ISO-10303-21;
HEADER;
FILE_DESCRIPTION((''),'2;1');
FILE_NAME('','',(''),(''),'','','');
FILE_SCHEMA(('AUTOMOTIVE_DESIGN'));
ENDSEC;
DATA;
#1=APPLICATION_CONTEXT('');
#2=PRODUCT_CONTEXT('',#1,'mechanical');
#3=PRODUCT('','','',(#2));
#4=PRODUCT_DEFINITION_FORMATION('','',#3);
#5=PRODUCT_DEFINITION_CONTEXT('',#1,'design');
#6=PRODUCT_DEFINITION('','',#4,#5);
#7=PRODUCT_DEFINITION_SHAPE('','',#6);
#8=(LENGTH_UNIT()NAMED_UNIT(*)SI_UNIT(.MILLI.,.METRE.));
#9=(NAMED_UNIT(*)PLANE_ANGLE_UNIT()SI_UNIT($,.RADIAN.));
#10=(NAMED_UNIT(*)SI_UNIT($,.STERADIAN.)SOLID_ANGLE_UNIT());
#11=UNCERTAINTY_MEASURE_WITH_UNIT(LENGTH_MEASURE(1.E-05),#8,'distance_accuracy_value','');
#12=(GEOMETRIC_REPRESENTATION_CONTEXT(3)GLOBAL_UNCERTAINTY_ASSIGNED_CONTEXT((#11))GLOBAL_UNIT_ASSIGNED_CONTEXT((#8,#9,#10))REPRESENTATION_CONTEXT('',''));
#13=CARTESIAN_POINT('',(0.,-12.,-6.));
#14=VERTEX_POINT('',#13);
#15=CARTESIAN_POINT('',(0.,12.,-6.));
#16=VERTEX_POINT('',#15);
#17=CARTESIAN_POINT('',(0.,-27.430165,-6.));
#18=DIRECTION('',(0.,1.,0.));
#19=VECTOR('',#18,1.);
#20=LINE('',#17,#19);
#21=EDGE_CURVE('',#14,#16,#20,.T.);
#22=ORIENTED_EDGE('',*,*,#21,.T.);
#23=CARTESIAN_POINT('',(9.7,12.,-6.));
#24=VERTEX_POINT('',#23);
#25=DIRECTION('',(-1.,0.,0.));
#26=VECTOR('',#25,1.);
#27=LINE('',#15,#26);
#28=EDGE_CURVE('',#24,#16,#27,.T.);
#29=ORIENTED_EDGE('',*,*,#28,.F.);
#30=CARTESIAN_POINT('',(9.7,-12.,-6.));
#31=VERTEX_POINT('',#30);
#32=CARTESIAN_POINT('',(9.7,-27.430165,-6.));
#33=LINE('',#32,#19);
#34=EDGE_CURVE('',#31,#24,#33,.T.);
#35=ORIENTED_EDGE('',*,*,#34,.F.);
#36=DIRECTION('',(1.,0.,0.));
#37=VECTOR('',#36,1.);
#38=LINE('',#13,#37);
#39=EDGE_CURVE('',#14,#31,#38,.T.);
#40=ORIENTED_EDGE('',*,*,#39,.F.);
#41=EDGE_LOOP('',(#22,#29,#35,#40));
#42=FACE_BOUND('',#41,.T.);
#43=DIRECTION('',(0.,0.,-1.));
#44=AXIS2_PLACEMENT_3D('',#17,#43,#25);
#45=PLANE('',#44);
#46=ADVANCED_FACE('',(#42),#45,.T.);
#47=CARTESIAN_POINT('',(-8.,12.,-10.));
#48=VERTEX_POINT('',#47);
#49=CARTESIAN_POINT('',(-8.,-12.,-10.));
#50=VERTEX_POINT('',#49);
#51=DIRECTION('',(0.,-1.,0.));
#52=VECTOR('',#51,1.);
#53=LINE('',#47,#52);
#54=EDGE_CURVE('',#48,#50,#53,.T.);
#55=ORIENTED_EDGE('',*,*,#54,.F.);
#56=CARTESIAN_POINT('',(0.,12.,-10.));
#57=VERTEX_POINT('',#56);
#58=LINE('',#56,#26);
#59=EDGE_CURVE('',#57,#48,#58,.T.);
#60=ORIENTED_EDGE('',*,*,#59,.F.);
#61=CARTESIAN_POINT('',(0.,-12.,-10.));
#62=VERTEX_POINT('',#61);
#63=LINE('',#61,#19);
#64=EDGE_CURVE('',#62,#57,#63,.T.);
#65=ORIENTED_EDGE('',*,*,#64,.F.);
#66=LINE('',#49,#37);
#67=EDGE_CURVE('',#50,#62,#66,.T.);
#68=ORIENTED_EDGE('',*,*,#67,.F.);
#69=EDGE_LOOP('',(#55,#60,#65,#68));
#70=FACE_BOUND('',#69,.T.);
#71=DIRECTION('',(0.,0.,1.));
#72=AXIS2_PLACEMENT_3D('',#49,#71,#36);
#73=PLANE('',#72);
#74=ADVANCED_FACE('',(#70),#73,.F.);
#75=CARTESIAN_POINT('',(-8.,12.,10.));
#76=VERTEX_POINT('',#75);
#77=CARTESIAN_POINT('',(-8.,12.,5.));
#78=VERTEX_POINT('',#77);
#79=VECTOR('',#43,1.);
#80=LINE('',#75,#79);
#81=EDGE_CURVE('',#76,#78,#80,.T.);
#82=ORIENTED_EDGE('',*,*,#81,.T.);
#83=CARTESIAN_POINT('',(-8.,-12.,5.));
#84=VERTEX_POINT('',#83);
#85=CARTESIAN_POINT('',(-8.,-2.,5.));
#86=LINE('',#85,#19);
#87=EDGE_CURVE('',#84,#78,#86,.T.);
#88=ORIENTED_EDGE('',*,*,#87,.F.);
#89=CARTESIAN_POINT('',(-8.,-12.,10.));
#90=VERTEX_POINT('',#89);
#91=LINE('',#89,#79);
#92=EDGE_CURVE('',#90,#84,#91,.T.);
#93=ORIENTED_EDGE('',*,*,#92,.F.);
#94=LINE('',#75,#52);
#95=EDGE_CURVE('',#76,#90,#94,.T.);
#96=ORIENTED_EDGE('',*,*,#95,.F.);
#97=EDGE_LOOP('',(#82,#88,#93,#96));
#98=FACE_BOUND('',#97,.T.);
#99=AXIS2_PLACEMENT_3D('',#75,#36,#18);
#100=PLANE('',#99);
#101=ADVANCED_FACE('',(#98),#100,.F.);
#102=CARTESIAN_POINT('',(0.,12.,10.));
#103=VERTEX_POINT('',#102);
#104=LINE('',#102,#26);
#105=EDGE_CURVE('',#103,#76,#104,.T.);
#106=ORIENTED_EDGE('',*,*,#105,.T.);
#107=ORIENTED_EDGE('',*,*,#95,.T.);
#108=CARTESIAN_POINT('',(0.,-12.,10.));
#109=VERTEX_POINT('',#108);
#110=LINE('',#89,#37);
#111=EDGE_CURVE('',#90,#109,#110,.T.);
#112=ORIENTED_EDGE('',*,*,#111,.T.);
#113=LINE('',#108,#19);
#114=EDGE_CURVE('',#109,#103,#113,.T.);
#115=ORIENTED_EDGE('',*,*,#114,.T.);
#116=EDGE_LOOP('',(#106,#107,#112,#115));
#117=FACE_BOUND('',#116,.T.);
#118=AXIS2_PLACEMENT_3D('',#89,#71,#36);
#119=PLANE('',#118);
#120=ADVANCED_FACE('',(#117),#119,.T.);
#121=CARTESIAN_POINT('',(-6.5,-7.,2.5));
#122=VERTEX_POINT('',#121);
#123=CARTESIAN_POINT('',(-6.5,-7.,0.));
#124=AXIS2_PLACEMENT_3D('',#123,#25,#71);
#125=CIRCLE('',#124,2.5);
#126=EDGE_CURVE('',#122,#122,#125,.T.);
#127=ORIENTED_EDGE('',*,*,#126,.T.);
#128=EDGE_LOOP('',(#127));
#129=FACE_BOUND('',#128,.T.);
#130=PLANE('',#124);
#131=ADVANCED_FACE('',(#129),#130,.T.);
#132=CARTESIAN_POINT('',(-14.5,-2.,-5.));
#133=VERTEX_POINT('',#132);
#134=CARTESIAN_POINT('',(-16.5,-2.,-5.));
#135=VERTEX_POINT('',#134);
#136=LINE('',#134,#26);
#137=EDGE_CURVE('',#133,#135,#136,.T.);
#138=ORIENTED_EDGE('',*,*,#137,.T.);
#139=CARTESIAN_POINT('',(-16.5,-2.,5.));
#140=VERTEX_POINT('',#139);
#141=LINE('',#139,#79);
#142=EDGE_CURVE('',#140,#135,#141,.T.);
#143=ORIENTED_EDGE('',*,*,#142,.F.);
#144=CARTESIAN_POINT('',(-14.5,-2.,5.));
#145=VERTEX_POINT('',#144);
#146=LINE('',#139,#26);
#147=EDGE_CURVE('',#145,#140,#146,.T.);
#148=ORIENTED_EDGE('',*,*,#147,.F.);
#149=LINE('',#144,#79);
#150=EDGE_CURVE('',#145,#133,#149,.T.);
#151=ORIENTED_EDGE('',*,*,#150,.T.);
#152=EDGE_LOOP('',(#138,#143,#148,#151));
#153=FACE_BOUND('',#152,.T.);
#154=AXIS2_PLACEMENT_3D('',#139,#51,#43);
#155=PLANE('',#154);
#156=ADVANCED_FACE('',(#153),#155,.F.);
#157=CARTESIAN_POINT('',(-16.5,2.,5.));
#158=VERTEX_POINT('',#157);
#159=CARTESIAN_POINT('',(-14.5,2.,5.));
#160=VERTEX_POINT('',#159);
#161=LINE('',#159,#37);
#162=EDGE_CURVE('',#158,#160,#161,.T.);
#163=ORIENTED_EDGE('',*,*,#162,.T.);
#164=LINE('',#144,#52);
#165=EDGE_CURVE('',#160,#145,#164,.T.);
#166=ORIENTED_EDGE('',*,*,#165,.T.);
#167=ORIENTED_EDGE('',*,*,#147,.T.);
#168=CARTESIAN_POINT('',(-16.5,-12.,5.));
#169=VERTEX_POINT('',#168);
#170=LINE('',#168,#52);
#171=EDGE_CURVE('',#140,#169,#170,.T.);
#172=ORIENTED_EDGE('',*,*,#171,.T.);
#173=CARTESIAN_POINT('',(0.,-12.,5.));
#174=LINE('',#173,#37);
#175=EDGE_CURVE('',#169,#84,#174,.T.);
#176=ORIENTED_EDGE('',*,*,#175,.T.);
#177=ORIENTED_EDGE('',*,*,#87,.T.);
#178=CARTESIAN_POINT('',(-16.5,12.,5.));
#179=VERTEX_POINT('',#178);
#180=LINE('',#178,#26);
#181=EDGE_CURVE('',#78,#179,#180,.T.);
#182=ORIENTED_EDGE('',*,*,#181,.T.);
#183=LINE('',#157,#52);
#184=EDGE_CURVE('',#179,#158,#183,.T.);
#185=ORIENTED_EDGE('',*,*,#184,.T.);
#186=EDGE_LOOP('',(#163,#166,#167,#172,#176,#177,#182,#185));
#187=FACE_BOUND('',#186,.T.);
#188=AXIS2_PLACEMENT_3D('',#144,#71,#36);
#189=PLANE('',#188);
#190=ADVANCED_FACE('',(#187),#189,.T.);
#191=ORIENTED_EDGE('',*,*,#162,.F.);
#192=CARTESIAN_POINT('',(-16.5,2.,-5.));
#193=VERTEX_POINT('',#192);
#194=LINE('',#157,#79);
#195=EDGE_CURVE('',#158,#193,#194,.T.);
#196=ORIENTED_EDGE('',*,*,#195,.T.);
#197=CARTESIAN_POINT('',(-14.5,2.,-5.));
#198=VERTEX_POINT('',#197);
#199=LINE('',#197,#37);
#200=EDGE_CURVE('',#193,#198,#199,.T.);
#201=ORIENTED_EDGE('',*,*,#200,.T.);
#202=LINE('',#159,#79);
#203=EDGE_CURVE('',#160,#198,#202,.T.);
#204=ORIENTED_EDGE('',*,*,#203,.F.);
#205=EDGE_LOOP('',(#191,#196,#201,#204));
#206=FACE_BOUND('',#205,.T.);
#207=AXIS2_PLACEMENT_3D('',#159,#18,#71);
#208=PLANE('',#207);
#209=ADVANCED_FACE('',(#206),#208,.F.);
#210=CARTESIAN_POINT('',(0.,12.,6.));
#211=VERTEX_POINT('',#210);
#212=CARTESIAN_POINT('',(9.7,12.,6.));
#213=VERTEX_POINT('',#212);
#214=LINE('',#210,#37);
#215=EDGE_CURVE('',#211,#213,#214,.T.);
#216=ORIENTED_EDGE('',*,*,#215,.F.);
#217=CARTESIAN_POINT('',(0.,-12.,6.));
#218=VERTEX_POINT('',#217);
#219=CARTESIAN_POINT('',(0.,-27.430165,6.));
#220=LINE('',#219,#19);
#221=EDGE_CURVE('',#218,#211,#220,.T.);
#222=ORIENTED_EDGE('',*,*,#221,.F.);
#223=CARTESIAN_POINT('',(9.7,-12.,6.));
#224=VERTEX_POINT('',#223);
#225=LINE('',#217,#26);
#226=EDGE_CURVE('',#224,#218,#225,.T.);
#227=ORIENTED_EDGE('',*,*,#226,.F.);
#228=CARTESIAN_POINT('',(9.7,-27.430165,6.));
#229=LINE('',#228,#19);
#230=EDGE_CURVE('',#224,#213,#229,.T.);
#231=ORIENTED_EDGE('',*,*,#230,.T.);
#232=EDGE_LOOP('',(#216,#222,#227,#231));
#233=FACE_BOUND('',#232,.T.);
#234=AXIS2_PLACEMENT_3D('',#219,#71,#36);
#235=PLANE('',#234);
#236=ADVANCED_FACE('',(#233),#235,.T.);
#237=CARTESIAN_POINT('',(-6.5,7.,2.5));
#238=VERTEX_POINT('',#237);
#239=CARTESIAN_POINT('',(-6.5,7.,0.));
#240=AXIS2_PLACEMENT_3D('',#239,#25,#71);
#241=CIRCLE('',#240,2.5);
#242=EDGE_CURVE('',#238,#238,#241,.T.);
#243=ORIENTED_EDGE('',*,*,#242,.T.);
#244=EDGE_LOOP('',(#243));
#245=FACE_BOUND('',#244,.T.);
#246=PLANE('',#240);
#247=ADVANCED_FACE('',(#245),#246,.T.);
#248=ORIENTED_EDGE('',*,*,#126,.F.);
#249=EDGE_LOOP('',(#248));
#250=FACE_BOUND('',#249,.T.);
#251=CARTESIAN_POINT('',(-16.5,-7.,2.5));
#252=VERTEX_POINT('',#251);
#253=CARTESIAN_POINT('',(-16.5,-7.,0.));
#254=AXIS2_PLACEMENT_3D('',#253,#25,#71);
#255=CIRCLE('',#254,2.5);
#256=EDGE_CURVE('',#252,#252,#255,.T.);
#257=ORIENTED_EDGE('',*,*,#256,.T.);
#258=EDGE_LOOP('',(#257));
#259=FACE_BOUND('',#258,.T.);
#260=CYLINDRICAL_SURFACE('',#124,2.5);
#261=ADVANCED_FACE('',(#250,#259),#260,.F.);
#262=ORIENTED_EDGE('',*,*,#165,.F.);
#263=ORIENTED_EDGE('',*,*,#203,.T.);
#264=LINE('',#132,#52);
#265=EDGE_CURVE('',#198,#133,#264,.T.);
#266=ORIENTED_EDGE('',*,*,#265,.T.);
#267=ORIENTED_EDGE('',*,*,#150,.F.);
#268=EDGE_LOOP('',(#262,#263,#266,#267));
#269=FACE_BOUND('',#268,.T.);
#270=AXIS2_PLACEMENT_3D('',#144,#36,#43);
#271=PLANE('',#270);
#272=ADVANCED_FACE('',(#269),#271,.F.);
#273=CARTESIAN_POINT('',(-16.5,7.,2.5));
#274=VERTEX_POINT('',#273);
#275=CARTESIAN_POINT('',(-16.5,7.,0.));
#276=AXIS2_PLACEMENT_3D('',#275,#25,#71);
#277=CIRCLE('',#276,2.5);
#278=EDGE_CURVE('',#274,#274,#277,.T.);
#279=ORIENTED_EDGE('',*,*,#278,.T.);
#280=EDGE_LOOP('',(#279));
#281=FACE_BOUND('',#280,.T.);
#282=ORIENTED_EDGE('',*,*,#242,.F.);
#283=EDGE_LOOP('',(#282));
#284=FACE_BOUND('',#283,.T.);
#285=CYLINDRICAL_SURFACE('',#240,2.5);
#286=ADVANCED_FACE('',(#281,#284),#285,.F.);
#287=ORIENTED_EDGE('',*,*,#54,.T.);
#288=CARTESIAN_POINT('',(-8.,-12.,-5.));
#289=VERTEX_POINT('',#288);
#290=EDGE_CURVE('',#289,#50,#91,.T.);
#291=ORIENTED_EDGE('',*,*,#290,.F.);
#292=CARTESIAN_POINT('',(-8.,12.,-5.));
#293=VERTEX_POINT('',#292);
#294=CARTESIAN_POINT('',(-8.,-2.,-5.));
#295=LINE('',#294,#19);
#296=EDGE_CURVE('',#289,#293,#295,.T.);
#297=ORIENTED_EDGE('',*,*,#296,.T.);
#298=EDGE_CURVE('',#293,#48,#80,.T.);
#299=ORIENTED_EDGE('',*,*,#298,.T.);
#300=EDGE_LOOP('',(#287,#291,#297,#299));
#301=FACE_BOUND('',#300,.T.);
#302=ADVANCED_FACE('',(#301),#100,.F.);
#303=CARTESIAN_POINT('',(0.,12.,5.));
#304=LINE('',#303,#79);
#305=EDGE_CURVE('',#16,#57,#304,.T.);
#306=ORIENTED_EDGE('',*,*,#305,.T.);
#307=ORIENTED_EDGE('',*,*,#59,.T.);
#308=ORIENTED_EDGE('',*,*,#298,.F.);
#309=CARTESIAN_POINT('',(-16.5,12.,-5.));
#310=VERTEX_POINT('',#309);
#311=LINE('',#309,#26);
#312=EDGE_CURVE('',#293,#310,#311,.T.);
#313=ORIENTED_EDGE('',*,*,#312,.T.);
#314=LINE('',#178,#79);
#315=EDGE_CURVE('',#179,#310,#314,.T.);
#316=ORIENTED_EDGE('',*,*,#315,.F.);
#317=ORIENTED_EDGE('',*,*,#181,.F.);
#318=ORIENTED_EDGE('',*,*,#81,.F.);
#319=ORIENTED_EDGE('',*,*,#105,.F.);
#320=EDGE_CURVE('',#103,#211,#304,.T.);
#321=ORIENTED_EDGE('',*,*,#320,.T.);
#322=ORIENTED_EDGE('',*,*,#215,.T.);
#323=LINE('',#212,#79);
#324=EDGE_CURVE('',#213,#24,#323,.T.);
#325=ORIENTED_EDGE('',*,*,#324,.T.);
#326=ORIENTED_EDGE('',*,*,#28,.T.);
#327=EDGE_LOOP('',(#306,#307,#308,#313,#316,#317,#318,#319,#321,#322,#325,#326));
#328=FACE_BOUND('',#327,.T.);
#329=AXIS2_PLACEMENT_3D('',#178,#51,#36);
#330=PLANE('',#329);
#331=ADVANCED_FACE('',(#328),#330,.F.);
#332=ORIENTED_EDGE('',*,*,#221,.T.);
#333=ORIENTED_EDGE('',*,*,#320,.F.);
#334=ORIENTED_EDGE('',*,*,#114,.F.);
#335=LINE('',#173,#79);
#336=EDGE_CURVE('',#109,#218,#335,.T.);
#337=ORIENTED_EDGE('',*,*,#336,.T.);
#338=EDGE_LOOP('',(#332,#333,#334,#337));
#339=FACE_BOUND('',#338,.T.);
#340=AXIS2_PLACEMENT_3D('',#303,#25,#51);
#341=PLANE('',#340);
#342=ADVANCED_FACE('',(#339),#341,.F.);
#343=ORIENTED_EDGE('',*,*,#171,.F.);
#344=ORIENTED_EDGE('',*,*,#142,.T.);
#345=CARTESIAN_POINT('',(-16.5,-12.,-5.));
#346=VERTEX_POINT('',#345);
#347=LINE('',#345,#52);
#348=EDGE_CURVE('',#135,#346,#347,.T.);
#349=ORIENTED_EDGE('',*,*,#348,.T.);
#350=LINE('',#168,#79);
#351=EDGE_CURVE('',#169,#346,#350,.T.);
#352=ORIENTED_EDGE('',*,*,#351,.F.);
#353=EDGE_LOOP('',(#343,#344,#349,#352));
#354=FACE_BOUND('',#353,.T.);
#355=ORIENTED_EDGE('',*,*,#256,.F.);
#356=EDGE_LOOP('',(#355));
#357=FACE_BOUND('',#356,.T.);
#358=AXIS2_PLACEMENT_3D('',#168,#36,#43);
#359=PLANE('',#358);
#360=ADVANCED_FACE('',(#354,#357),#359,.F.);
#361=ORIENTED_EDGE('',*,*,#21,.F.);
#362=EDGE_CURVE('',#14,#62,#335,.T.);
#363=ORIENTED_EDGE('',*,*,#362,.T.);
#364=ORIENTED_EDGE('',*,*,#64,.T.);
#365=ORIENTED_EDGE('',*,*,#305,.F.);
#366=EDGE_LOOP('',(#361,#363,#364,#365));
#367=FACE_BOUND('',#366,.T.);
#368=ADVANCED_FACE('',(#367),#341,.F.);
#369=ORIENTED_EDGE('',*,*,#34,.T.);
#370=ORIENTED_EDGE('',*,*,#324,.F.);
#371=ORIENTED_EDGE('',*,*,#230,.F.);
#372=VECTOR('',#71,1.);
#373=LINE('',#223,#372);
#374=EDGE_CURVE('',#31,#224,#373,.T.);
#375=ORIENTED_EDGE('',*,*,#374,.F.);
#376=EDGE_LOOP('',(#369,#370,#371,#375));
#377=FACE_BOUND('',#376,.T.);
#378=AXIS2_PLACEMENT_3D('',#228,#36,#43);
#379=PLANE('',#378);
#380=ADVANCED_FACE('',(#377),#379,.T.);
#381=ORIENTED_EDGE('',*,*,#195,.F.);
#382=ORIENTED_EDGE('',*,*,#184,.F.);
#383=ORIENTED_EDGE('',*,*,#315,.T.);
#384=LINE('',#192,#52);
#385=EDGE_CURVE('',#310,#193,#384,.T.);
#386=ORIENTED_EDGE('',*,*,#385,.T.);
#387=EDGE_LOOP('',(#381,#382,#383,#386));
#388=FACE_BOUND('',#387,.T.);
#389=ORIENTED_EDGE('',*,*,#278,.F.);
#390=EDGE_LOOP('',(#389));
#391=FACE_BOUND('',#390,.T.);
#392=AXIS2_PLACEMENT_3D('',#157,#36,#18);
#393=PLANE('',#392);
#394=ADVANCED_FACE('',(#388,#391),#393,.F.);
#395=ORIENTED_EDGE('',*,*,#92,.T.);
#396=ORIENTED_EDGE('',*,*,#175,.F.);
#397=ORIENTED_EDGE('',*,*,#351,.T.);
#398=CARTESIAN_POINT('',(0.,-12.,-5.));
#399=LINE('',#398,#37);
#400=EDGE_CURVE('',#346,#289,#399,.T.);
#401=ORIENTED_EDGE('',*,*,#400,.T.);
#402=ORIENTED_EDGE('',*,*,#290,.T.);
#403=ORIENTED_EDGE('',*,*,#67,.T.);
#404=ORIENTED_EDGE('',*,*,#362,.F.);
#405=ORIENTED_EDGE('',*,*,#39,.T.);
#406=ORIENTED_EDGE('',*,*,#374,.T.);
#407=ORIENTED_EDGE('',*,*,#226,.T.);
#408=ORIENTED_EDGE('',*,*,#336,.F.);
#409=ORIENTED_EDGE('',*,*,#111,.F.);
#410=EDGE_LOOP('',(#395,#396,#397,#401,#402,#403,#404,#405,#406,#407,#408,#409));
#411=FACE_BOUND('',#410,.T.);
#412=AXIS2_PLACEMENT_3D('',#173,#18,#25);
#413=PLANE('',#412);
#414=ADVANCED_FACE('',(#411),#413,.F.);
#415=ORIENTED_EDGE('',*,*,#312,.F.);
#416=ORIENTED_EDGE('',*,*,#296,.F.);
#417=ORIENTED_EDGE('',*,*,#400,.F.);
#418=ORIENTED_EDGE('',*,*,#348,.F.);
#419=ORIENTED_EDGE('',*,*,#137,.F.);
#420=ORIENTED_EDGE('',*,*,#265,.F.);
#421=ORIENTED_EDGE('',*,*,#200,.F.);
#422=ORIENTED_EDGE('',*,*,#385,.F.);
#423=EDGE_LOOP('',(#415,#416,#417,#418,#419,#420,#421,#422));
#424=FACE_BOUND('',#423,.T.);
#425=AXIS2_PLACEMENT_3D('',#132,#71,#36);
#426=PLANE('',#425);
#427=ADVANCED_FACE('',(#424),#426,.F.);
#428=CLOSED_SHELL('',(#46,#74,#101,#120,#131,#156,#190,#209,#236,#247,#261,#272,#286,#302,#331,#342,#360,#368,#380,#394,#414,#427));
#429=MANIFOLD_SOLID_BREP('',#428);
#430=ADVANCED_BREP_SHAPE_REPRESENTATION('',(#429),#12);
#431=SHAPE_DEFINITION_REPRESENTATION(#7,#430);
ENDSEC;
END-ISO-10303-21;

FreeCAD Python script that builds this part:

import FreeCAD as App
import Part
import Sketcher
from FreeCAD import Vector

doc = App.newDocument("Part")
body = doc.addObject("PartDesign::Body", "Body")

sketch1 = body.newObject("Sketcher::SketchObject", "Sketch")
sketch1.AttachmentSupport = (doc.getObject("XY_Plane"), [""])
sketch1.MapMode = "FlatFace"
sketch1.addGeometry([
    Part.LineSegment(Vector(-16.5, -2, 0), Vector(-16.5, -12, 0)),
    Part.LineSegment(Vector(-16.5, -12, 0), Vector(0, -12, 0)),
    Part.LineSegment(Vector(0, -12, 0), Vector(0, 12, 0)),
    Part.LineSegment(Vector(0, 12, 0), Vector(-16.5, 12, 0)),
    Part.LineSegment(Vector(-16.5, 12, 0), Vector(-16.5, 2, 0)),
    Part.LineSegment(Vector(-16.5, 2, 0), Vector(-14.5, 2, 0)),
    Part.LineSegment(Vector(-14.5, 2, 0), Vector(-14.5, -2, 0)),
    Part.LineSegment(Vector(-14.5, -2, 0), Vector(-16.5, -2, 0)),
], False)
sketch1.addConstraint([
    Sketcher.Constraint("Coincident", 0, 2, 1, 1),
    Sketcher.Constraint("Coincident", 1, 2, 2, 1),
    Sketcher.Constraint("Coincident", 2, 2, 3, 1),
    Sketcher.Constraint("Coincident", 3, 2, 4, 1),
    Sketcher.Constraint("Coincident", 4, 2, 5, 1),
    Sketcher.Constraint("Coincident", 5, 2, 6, 1),
    Sketcher.Constraint("Coincident", 6, 2, 7, 1),
    Sketcher.Constraint("Coincident", 7, 2, 0, 1),
    Sketcher.Constraint("Vertical", 0),
    Sketcher.Constraint("Horizontal", 1),
    Sketcher.Constraint("Vertical", 2),
    Sketcher.Constraint("Horizontal", 3),
    Sketcher.Constraint("Vertical", 4),
    Sketcher.Constraint("Horizontal", 5),
    Sketcher.Constraint("Vertical", 6),
    Sketcher.Constraint("Horizontal", 7),
    Sketcher.Constraint("Symmetric", 1, 2, 2, 2, -1, 1),
    Sketcher.Constraint("Symmetric", 4, 2, 7, 2, -1),
    Sketcher.Constraint("DistanceX", 5, 1, 5, 2, 2.0),
    Sketcher.Constraint("DistanceY", 0, 2, 0, 1, 10.0),
    Sketcher.Constraint("DistanceY", 2, 1, 2, 2, 24.0),
    Sketcher.Constraint("DistanceX", 1, 1, 1, 2, 16.5),
])
pad1 = body.newObject("PartDesign::Pad", "Pad")
pad1.Profile = sketch1
pad1.Length = 10
pad1.Midplane = True

sketch2 = body.newObject("Sketcher::SketchObject", "Sketch001")
sketch2.AttachmentSupport = (doc.getObject("XY_Plane"), [""])
sketch2.MapMode = "FlatFace"
sketch2.addGeometry([
    Part.LineSegment(Vector(-8, 12, 0), Vector(-8, -12, 0)),
    Part.LineSegment(Vector(-8, -12, 0), Vector(0, -12, 0)),
    Part.LineSegment(Vector(0, -12, 0), Vector(0, 12, 0)),
    Part.LineSegment(Vector(0, 12, 0), Vector(-8, 12, 0)),
], False)
sketch2.addConstraint([
    Sketcher.Constraint("Coincident", 0, 2, 1, 1),
    Sketcher.Constraint("Coincident", 1, 2, 2, 1),
    Sketcher.Constraint("Coincident", 2, 2, 3, 1),
    Sketcher.Constraint("Coincident", 3, 2, 0, 1),
    Sketcher.Constraint("Vertical", 0),
    Sketcher.Constraint("Horizontal", 1),
    Sketcher.Constraint("Vertical", 2),
    Sketcher.Constraint("Horizontal", 3),
    Sketcher.Constraint("Symmetric", 1, 2, 2, 2, -1, 1),
    Sketcher.Constraint("DistanceX", 1, 1, 1, 2, 8.0),
    Sketcher.Constraint("DistanceY", 0, 2, 0, 1, 24.0),
])
pad2 = body.newObject("PartDesign::Pad", "Pad001")
pad2.Profile = sketch2
pad2.Length = 20
pad2.Midplane = True

sketch3 = body.newObject("Sketcher::SketchObject", "Sketch002")
sketch3.AttachmentSupport = (doc.getObject("YZ_Plane"), [""])
sketch3.MapMode = "FlatFace"
sketch3.AttachmentOffset = App.Placement(Vector(0, 0, -16.5), App.Rotation())
sketch3.addGeometry([
    Part.Circle(Vector(7, 0, 0), Vector(0, 0, 1), 2.5),
    Part.Circle(Vector(-7, 0, 0), Vector(0, 0, 1), 2.5),
], False)
sketch3.addConstraint([
    Sketcher.Constraint("Equal", 0, 1),
    Sketcher.Constraint("Symmetric", 0, 3, 1, 3, -1, 1),
    Sketcher.Constraint("PointOnObject", 0, 3, -1),
    Sketcher.Constraint("Diameter", 0, 5.0),
    Sketcher.Constraint("DistanceX", -1, 1, 0, 3, 7.0),
])
pocket1 = body.newObject("PartDesign::Pocket", "Pocket")
pocket1.Profile = sketch3
pocket1.Length = 10
pocket1.Reversed = True

sketch4 = body.newObject("Sketcher::SketchObject", "Sketch003")
sketch4.AttachmentSupport = (doc.getObject("XZ_Plane"), [""])
sketch4.MapMode = "FlatFace"
sketch4.AttachmentOffset = App.Placement(Vector(0, 0, -12), App.Rotation())
sketch4.addGeometry([
    Part.LineSegment(Vector(10, 6, 0), Vector(10, -6, 0)),
    Part.LineSegment(Vector(10, -6, 0), Vector(0, -6, 0)),
    Part.LineSegment(Vector(0, -6, 0), Vector(0, 6, 0)),
    Part.LineSegment(Vector(0, 6, 0), Vector(10, 6, 0)),
], False)
sketch4.addConstraint([
    Sketcher.Constraint("Coincident", 0, 2, 1, 1),
    Sketcher.Constraint("Coincident", 1, 2, 2, 1),
    Sketcher.Constraint("Coincident", 2, 2, 3, 1),
    Sketcher.Constraint("Coincident", 3, 2, 0, 1),
    Sketcher.Constraint("Vertical", 0),
    Sketcher.Constraint("Horizontal", 1),
    Sketcher.Constraint("Vertical", 2),
    Sketcher.Constraint("Horizontal", 3),
    Sketcher.Constraint("Symmetric", 1, 2, 2, 2, -1, 1),
    Sketcher.Constraint("DistanceY", 0, 2, 0, 1, 12.0),
    Sketcher.Constraint("DistanceX", 1, 2, 1, 1, 9.7),
])
pad3 = body.newObject("PartDesign::Pad", "Pad002")
pad3.Profile = sketch4
pad3.Length = 24

doc.recompute()
